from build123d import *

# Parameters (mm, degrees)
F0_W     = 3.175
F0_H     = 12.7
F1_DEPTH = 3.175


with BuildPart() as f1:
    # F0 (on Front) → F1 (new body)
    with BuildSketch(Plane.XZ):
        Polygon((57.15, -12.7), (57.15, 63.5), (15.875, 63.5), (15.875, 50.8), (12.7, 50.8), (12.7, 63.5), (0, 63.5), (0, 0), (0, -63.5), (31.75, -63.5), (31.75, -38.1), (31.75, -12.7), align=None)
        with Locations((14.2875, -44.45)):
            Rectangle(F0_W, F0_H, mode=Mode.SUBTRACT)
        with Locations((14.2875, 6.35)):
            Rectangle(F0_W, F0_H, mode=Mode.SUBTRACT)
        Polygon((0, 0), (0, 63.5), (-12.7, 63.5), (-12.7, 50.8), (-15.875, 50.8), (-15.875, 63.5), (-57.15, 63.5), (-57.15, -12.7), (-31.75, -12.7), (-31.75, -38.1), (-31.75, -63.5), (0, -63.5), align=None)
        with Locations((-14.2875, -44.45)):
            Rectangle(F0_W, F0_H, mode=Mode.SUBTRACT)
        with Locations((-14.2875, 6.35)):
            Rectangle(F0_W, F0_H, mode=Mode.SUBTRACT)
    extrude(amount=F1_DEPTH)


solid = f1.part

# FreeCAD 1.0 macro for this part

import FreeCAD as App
import Part
import Sketcher
from FreeCAD import Vector
Q = App.Units.Quantity

doc = App.newDocument("Part")
body = doc.addObject("PartDesign::Body", "Body")

# Sketch on XZ plane
sketch1 = body.newObject("Sketcher::SketchObject", "Sketch")
sketch1.AttachmentSupport = (doc.getObject("XZ_Plane"), [""])
sketch1.MapMode = "FlatFace"
sketch1.addGeometry([
    Part.LineSegment(Vector(57.1, -12.7, 0), Vector(57.1, 63.5, 0)),  # 0
    Part.LineSegment(Vector(57.1, 63.5, 0), Vector(15.9, 63.5, 0)),  # 1
    Part.LineSegment(Vector(15.9, 63.5, 0), Vector(15.9, 50.8, 0)),  # 2
    Part.LineSegment(Vector(15.9, 50.8, 0), Vector(12.7, 50.8, 0)),  # 3
    Part.LineSegment(Vector(12.7, 50.8, 0), Vector(12.7, 63.5, 0)),  # 4
    Part.LineSegment(Vector(12.7, 63.5, 0), Vector(-12.7, 63.5, 0)),  # 5
    Part.LineSegment(Vector(-12.7, 63.5, 0), Vector(-12.7, 50.8, 0)),  # 6
    Part.LineSegment(Vector(-12.7, 50.8, 0), Vector(-15.9, 50.8, 0)),  # 7
    Part.LineSegment(Vector(-15.9, 50.8, 0), Vector(-15.9, 63.5, 0)),  # 8
    Part.LineSegment(Vector(-15.9, 63.5, 0), Vector(-57.1, 63.5, 0)),  # 9
    Part.LineSegment(Vector(-57.1, 63.5, 0), Vector(-57.1, -12.7, 0)),  # 10
    Part.LineSegment(Vector(-57.1, -12.7, 0), Vector(-31.8, -12.7, 0)),  # 11
    Part.LineSegment(Vector(-31.8, -12.7, 0), Vector(-31.8, -63.5, 0)),  # 12
    Part.LineSegment(Vector(-31.8, -63.5, 0), Vector(31.8, -63.5, 0)),  # 13
    Part.LineSegment(Vector(31.8, -63.5, 0), Vector(31.8, -12.7, 0)),  # 14
    Part.LineSegment(Vector(31.8, -12.7, 0), Vector(57.1, -12.7, 0)),  # 15
    Part.LineSegment(Vector(-12.7, -50.8, 0), Vector(-15.9, -50.8, 0)),  # 16
    Part.LineSegment(Vector(-15.9, -50.8, 0), Vector(-15.9, -38.1, 0)),  # 17
    Part.LineSegment(Vector(-15.9, -38.1, 0), Vector(-12.7, -38.1, 0)),  # 18
    Part.LineSegment(Vector(-12.7, -38.1, 0), Vector(-12.7, -50.8, 0)),  # 19
    Part.LineSegment(Vector(15.9, -50.8, 0), Vector(12.7, -50.8, 0)),  # 20
    Part.LineSegment(Vector(12.7, -50.8, 0), Vector(12.7, -38.1, 0)),  # 21
    Part.LineSegment(Vector(12.7, -38.1, 0), Vector(15.9, -38.1, 0)),  # 22
    Part.LineSegment(Vector(15.9, -38.1, 0), Vector(15.9, -50.8, 0)),  # 23
    Part.LineSegment(Vector(-12.7, 0, 0), Vector(-15.9, 0, 0)),  # 24
    Part.LineSegment(Vector(-15.9, 0, 0), Vector(-15.9, 12.7, 0)),  # 25
    Part.LineSegment(Vector(-15.9, 12.7, 0), Vector(-12.7, 12.7, 0)),  # 26
    Part.LineSegment(Vector(-12.7, 12.7, 0), Vector(-12.7, 0, 0)),  # 27
    Part.LineSegment(Vector(15.9, 0, 0), Vector(12.7, 0, 0)),  # 28
    Part.LineSegment(Vector(12.7, 0, 0), Vector(12.7, 12.7, 0)),  # 29
    Part.LineSegment(Vector(12.7, 12.7, 0), Vector(15.9, 12.7, 0)),  # 30
    Part.LineSegment(Vector(15.9, 12.7, 0), Vector(15.9, 0, 0)),  # 31
], False)
sketch1.addConstraint([
    Sketcher.Constraint("Coincident", 0, 2, 1, 1),
    Sketcher.Constraint("Coincident", 1, 2, 2, 1),
    Sketcher.Constraint("Coincident", 2, 2, 3, 1),
    Sketcher.Constraint("Coincident", 3, 2, 4, 1),
    Sketcher.Constraint("Coincident", 4, 2, 5, 1),
    Sketcher.Constraint("Coincident", 5, 2, 6, 1),
    Sketcher.Constraint("Coincident", 6, 2, 7, 1),
    Sketcher.Constraint("Coincident", 7, 2, 8, 1),
    Sketcher.Constraint("Coincident", 8, 2, 9, 1),
    Sketcher.Constraint("Coincident", 9, 2, 10, 1),
    Sketcher.Constraint("Coincident", 10, 2, 11, 1),
    Sketcher.Constraint("Coincident", 11, 2, 12, 1),
    Sketcher.Constraint("Coincident", 12, 2, 13, 1),
    Sketcher.Constraint("Coincident", 13, 2, 14, 1),
    Sketcher.Constraint("Coincident", 14, 2, 15, 1),
    Sketcher.Constraint("Coincident", 15, 2, 0, 1),
    Sketcher.Constraint("Coincident", 16, 2, 17, 1),
    Sketcher.Constraint("Coincident", 17, 2, 18, 1),
    Sketcher.Constraint("Coincident", 18, 2, 19, 1),
    Sketcher.Constraint("Coincident", 19, 2, 16, 1),
    Sketcher.Constraint("Coincident", 20, 2, 21, 1),
    Sketcher.Constraint("Coincident", 21, 2, 22, 1),
    Sketcher.Constraint("Coincident", 22, 2, 23, 1),
    Sketcher.Constraint("Coincident", 23, 2, 20, 1),
    Sketcher.Constraint("Coincident", 24, 2, 25, 1),
    Sketcher.Constraint("Coincident", 25, 2, 26, 1),
    Sketcher.Constraint("Coincident", 26, 2, 27, 1),
    Sketcher.Constraint("Coincident", 27, 2, 24, 1),
    Sketcher.Constraint("Coincident", 28, 2, 29, 1),
    Sketcher.Constraint("Coincident", 29, 2, 30, 1),
    Sketcher.Constraint("Coincident", 30, 2, 31, 1),
    Sketcher.Constraint("Coincident", 31, 2, 28, 1),
    Sketcher.Constraint("Vertical", 0),
    Sketcher.Constraint("Horizontal", 1),
    Sketcher.Constraint("Vertical", 2),
    Sketcher.Constraint("Horizontal", 3),
    Sketcher.Constraint("Vertical", 4),
    Sketcher.Constraint("Horizontal", 5),
    Sketcher.Constraint("Vertical", 6),
    Sketcher.Constraint("Horizontal", 7),
    Sketcher.Constraint("Vertical", 8),
    Sketcher.Constraint("Horizontal", 9),
    Sketcher.Constraint("Vertical", 10),
    Sketcher.Constraint("Horizontal", 11),
    Sketcher.Constraint("Vertical", 12),
    Sketcher.Constraint("Horizontal", 13),
    Sketcher.Constraint("Vertical", 14),
    Sketcher.Constraint("Horizontal", 15),
    Sketcher.Constraint("Horizontal", 16),
    Sketcher.Constraint("Vertical", 17),
    Sketcher.Constraint("Horizontal", 18),
    Sketcher.Constraint("Vertical", 19),
    Sketcher.Constraint("Horizontal", 20),
    Sketcher.Constraint("Vertical", 21),
    Sketcher.Constraint("Horizontal", 22),
    Sketcher.Constraint("Vertical", 23),
    Sketcher.Constraint("Horizontal", 24),
    Sketcher.Constraint("Vertical", 25),
    Sketcher.Constraint("Horizontal", 26),
    Sketcher.Constraint("Vertical", 27),
    Sketcher.Constraint("Horizontal", 28),
    Sketcher.Constraint("Vertical", 29),
    Sketcher.Constraint("Horizontal", 30),
    Sketcher.Constraint("Vertical", 31),
    Sketcher.Constraint("Symmetric", 2, 2, 16, 2, -1, 1),
    Sketcher.Constraint("Symmetric", 6, 2, 20, 2, -1, 1),
    Sketcher.Constraint("Symmetric", 27, 2, 28, 2, -1, 1),
    Sketcher.Constraint("Symmetric", 3, 2, 6, 2, -2),
    Sketcher.Constraint("Symmetric", 1, 2, 8, 2, -2),
    Sketcher.Constraint("Symmetric", 11, 2, 14, 2, -2),
    Sketcher.Constraint("Symmetric", 18, 2, 21, 2, -2),
    Sketcher.Constraint("Symmetric", 25, 2, 30, 2, -2),
    Sketcher.Constraint("PointOnObject", 24, 2, -1),
    Sketcher.Constraint("Horizontal", 1, 2, 4, 2),
    Sketcher.Constraint("Vertical", 2, 2, 22, 2),
    Sketcher.Constraint("Vertical", 17, 2, 24, 2),
    Sketcher.Constraint("Vertical", 19, 2, 26, 2),
    Sketcher.Constraint("Equal", 1, 9),
    Sketcher.Constraint("Equal", 5, 11),
    Sketcher.Constraint("Equal", 8, 17),
    Sketcher.Constraint("Equal", 23, 25),
    Sketcher.Constraint("DistanceX", 5, 2, 5, 1, Q("1 in")),
    Sketcher.Constraint("DistanceY", 0, 1, 0, 2, Q("3 in")),
    Sketcher.Constraint("DistanceY", 12, 2, 12, 1, Q("2 in")),
    Sketcher.Constraint("DistanceX", 13, 1, 13, 2, Q("2.5 in")),
    Sketcher.Constraint("DistanceY", 2, 2, 2, 1, Q("0.5 in")),
    Sketcher.Constraint("DistanceY", -1, 1, 2, 2, Q("2 in")),
    Sketcher.Constraint("DistanceX", 1, 2, 1, 1, Q("1.625 in")),
])
pad1 = body.newObject("PartDesign::Pad", "Pad")
pad1.Profile = sketch1
pad1.Length = Q("0.125 in")

doc.recompute()
